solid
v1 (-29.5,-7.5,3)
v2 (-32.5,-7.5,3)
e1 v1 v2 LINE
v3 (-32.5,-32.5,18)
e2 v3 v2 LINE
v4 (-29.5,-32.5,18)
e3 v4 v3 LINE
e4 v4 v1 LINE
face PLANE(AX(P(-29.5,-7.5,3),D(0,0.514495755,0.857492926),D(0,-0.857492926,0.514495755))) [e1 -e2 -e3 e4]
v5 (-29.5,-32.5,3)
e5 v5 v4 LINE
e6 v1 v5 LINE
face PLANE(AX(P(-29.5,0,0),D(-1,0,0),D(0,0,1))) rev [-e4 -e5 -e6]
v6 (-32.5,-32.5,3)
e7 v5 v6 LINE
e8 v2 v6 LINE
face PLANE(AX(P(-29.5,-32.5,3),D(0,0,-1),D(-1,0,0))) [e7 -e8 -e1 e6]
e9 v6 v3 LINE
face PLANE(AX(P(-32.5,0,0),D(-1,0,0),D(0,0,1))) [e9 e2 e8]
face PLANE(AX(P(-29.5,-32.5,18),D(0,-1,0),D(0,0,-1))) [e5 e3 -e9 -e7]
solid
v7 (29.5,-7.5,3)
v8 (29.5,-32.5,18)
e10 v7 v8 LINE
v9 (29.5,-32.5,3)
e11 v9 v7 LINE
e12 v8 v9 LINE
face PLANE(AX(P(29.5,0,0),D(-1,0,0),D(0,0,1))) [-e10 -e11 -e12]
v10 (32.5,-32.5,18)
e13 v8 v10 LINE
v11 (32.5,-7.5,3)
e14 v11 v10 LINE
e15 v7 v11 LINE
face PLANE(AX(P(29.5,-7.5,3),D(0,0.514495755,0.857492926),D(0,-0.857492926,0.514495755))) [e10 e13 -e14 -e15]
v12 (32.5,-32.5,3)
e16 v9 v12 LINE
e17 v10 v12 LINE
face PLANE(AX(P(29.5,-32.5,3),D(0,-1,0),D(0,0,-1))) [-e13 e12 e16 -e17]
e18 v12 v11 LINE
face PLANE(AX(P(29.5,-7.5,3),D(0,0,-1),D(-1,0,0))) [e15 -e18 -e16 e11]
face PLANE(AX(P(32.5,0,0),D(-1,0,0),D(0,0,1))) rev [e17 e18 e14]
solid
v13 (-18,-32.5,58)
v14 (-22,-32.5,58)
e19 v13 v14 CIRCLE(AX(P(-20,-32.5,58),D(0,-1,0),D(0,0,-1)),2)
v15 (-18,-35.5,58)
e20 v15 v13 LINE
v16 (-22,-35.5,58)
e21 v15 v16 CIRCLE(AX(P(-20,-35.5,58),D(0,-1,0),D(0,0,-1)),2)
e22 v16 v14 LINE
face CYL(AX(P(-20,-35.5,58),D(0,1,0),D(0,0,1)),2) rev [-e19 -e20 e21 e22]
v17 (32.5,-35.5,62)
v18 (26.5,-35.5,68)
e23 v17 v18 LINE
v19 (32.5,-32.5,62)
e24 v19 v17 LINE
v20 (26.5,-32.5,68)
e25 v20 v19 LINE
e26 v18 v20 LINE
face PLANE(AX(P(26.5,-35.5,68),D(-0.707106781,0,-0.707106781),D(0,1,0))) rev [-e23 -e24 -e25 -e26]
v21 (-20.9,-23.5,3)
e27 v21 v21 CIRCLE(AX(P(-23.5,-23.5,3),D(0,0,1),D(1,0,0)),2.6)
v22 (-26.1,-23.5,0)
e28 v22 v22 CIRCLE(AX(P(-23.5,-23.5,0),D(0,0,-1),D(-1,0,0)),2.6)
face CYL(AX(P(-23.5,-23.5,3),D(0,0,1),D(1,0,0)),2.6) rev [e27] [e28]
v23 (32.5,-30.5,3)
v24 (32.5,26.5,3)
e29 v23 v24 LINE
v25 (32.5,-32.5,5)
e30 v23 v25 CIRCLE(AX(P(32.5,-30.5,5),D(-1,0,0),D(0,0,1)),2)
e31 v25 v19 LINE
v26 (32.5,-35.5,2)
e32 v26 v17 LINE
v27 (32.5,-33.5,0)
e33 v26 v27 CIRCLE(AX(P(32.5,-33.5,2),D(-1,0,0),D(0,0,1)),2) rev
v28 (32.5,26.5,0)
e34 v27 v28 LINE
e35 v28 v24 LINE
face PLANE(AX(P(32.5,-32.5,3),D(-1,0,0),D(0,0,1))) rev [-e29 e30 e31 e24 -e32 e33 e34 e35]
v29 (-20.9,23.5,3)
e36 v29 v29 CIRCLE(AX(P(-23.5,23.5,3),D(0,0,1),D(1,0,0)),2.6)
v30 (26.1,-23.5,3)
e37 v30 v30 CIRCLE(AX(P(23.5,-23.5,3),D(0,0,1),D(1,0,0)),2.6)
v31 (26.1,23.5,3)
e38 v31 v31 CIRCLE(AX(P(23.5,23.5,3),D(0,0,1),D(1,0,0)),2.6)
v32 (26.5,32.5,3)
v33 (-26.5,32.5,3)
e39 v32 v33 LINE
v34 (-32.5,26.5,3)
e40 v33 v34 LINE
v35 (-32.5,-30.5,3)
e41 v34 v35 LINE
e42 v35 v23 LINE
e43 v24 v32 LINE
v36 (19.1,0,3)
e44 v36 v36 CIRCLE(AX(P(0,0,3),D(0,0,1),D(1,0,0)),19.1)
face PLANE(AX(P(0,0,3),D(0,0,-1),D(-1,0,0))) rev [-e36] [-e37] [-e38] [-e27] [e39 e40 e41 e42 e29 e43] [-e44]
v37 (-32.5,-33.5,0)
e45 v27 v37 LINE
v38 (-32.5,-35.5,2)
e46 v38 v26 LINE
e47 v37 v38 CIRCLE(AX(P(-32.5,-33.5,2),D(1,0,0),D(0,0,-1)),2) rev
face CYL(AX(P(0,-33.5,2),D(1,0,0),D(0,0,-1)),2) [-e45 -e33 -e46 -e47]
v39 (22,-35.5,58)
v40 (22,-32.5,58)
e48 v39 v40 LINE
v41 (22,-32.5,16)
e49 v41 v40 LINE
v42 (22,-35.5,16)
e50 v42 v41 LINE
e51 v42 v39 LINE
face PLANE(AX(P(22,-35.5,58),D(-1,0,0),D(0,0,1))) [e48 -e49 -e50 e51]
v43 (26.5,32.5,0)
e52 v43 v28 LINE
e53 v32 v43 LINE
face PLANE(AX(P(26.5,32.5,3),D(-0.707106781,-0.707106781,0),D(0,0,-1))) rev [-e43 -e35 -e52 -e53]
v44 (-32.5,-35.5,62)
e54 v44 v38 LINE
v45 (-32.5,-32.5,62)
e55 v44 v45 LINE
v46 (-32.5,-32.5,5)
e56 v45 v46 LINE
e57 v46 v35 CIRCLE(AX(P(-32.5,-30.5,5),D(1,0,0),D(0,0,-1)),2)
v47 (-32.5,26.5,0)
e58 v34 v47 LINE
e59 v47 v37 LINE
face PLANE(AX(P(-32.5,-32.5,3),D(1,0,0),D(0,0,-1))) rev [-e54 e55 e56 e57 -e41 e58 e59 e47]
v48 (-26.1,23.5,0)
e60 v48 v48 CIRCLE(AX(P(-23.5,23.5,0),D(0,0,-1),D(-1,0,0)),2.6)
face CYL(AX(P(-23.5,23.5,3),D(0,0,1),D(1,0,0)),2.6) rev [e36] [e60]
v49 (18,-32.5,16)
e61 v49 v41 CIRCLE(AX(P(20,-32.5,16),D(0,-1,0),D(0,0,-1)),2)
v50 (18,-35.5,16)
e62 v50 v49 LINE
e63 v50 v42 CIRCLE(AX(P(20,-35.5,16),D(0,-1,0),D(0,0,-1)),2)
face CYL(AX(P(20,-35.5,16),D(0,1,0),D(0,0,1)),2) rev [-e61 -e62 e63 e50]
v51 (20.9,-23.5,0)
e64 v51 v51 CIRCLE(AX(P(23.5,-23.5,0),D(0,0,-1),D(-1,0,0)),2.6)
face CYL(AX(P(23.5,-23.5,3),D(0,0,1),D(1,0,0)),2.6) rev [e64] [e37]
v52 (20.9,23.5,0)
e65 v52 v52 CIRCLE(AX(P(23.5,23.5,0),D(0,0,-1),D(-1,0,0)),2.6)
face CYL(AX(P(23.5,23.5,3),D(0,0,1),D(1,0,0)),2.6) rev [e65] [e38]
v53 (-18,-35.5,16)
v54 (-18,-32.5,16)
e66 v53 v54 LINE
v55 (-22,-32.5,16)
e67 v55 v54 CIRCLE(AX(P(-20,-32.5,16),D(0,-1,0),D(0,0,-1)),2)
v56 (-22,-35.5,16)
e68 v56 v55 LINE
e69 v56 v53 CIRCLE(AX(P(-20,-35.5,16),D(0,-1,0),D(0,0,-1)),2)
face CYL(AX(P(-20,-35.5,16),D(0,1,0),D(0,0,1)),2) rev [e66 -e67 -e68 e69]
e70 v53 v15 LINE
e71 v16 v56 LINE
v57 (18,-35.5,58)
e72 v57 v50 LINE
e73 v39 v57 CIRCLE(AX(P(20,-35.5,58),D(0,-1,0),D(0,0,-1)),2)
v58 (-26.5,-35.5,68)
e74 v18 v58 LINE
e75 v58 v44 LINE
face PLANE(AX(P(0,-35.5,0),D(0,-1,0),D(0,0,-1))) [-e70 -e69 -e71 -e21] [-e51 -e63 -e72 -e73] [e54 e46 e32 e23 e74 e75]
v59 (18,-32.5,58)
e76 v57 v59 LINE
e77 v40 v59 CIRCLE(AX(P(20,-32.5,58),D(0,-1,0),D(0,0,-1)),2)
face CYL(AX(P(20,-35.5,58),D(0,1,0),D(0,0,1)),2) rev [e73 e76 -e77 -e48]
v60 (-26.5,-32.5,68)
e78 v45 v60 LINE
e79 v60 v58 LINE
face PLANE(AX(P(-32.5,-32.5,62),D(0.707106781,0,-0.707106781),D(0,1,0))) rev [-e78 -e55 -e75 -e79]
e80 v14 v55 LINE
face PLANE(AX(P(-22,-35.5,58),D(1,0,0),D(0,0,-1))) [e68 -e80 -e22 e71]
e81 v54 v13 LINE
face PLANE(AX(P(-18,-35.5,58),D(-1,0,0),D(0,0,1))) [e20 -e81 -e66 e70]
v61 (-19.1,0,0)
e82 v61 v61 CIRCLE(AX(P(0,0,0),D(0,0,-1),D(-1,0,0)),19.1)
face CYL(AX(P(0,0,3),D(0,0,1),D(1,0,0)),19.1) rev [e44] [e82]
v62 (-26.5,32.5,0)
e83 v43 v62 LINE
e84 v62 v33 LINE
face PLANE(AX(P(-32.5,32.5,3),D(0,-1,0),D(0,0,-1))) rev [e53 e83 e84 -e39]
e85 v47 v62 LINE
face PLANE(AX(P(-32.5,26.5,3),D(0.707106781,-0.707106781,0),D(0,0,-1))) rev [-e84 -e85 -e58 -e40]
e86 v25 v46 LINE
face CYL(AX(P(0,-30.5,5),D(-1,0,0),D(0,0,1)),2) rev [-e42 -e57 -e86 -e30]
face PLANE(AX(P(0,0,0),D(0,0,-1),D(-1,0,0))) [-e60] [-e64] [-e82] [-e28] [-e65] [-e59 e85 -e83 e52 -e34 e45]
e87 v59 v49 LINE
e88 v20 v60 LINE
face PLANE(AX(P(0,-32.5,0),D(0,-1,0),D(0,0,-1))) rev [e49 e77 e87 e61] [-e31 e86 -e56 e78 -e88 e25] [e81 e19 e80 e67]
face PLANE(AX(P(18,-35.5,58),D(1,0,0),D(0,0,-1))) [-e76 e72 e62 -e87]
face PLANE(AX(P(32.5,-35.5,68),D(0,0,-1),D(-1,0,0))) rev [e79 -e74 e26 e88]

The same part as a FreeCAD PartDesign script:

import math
import FreeCAD as App
import Part
import Sketcher
from FreeCAD import Vector
Q = App.Units.Quantity


def edges_at(feature, points):
    """Names of the edges that pass closest to the given points."""
    edges = feature.Shape.Edges
    near = lambda p: min(range(len(edges)), key=lambda i: edges[i].distToShape(Part.Vertex(*p))[0])
    return sorted({f"Edge{near(p) + 1}" for p in points})

doc = App.newDocument("Part")
body = doc.addObject("PartDesign::Body", "Body")

# Sketch on XY plane
sketch1 = doc.addObject("Sketcher::SketchObject", "Sketch")
body.addObject(sketch1)
sketch1.AttachmentSupport = (doc.XY_Plane, [""])
sketch1.MapMode = "FlatFace"
sketch1.addGeometry(Part.LineSegment(Vector(-32.5, 32.5, 0), Vector(-32.5, -32.5, 0)), False)
sketch1.addGeometry(Part.LineSegment(Vector(-32.5, -32.5, 0), Vector(32.5, -32.5, 0)), False)
sketch1.addGeometry(Part.LineSegment(Vector(32.5, -32.5, 0), Vector(32.5, 32.5, 0)), False)
sketch1.addGeometry(Part.LineSegment(Vector(32.5, 32.5, 0), Vector(-32.5, 32.5, 0)), False)
sketch1.addConstraint(Sketcher.Constraint("Coincident", 0, 2, 1, 1))
sketch1.addConstraint(Sketcher.Constraint("Coincident", 1, 2, 2, 1))
sketch1.addConstraint(Sketcher.Constraint("Coincident", 2, 2, 3, 1))
sketch1.addConstraint(Sketcher.Constraint("Coincident", 3, 2, 0, 1))
sketch1.addConstraint(Sketcher.Constraint("Vertical", 0))
sketch1.addConstraint(Sketcher.Constraint("Horizontal", 1))
sketch1.addConstraint(Sketcher.Constraint("Vertical", 2))
sketch1.addConstraint(Sketcher.Constraint("Horizontal", 3))
sketch1.addConstraint(Sketcher.Constraint("Symmetric", 0, 2, 2, 2, -1, 1))
sketch1.addConstraint(Sketcher.Constraint("Equal", 3, 0))
sketch1.addConstraint(Sketcher.Constraint("DistanceX", 1, 1, 1, 2, Q("65 mm")))
pad1 = doc.addObject("PartDesign::Pad", "Pad")
body.addObject(pad1)
pad1.Profile = sketch1
pad1.Length = 3

# Sketch on XZ plane
sketch2 = doc.addObject("Sketcher::SketchObject", "Sketch001")
body.addObject(sketch2)
sketch2.AttachmentSupport = (doc.XZ_Plane, [""])
sketch2.MapMode = "FlatFace"
sketch2.AttachmentOffset = App.Placement(Vector(0, 0, 32.5), App.Rotation())
sketch2.addGeometry(Part.LineSegment(Vector(32.5, 0, 0), Vector(32.5, 68, 0)), False)
sketch2.addGeometry(Part.LineSegment(Vector(32.5, 68, 0), Vector(-32.5, 68, 0)), False)
sketch2.addGeometry(Part.LineSegment(Vector(-32.5, 68, 0), Vector(-32.5, 0, 0)), False)
sketch2.addGeometry(Part.LineSegment(Vector(-32.5, 0, 0), Vector(32.5, 0, 0)), False)
sketch2.addGeometry(Part.ArcOfCircle(Part.Circle(Vector(20, 58, 0), Vector(0, 0, 1), 2), math.radians(0), math.radians(180)), False)
sketch2.addGeometry(Part.LineSegment(Vector(22, 58, 0), Vector(22, 16, 0)), False)
sketch2.addGeometry(Part.ArcOfCircle(Part.Circle(Vector(20, 16, 0), Vector(0, 0, 1), 2), math.radians(180), math.radians(360)), False)
sketch2.addGeometry(Part.LineSegment(Vector(18, 16, 0), Vector(18, 58, 0)), False)
sketch2.addGeometry(Part.ArcOfCircle(Part.Circle(Vector(-20, 58, 0), Vector(0, 0, 1), 2), math.radians(0), math.radians(180)), False)
sketch2.addGeometry(Part.LineSegment(Vector(-18, 58, 0), Vector(-18, 16, 0)), False)
sketch2.addGeometry(Part.ArcOfCircle(Part.Circle(Vector(-20, 16, 0), Vector(0, 0, 1), 2), math.radians(180), math.radians(360)), False)
sketch2.addGeometry(Part.LineSegment(Vector(-22, 16, 0), Vector(-22, 58, 0)), False)
sketch2.addConstraint(Sketcher.Constraint("Coincident", 0, 2, 1, 1))
sketch2.addConstraint(Sketcher.Constraint("Coincident", 1, 2, 2, 1))
sketch2.addConstraint(Sketcher.Constraint("Coincident", 2, 2, 3, 1))
sketch2.addConstraint(Sketcher.Constraint("Coincident", 3, 2, 0, 1))
sketch2.addConstraint(Sketcher.Constraint("Tangent", 4, 1, 5, 1))
sketch2.addConstraint(Sketcher.Constraint("Tangent", 5, 2, 6, 2))
sketch2.addConstraint(Sketcher.Constraint("Tangent", 6, 1, 7, 1))
sketch2.addConstraint(Sketcher.Constraint("Tangent", 7, 2, 4, 2))
sketch2.addConstraint(Sketcher.Constraint("Tangent", 8, 1, 9, 1))
sketch2.addConstraint(Sketcher.Constraint("Tangent", 9, 2, 10, 2))
sketch2.addConstraint(Sketcher.Constraint("Tangent", 10, 1, 11, 1))
sketch2.addConstraint(Sketcher.Constraint("Tangent", 11, 2, 8, 2))
sketch2.addConstraint(Sketcher.Constraint("Vertical", 0))
sketch2.addConstraint(Sketcher.Constraint("Horizontal", 1))
sketch2.addConstraint(Sketcher.Constraint("Vertical", 2))
sketch2.addConstraint(Sketcher.Constraint("Horizontal", 3))
sketch2.addConstraint(Sketcher.Constraint("Vertical", 5))
sketch2.addConstraint(Sketcher.Constraint("Vertical", 7))
sketch2.addConstraint(Sketcher.Constraint("Vertical", 9))
sketch2.addConstraint(Sketcher.Constraint("Vertical", 11))
sketch2.addConstraint(Sketcher.Constraint("Equal", 6, 8))
sketch2.addConstraint(Sketcher.Constraint("Symmetric", 2, 2, 3, 2, -1, 1))
sketch2.addConstraint(Sketcher.Constraint("Symmetric", 4, 3, 8, 3, -2))
sketch2.addConstraint(Sketcher.Constraint("Horizontal", 6, 3, 10, 3))
sketch2.addConstraint(Sketcher.Constraint("Radius", 4, Q("2 mm")))
sketch2.addConstraint(Sketcher.Constraint("DistanceX", 1, 2, 1, 1, Q("65 mm")))
sketch2.addConstraint(Sketcher.Constraint("DistanceY", 0, 1, 0, 2, Q("68 mm")))
sketch2.addConstraint(Sketcher.Constraint("DistanceY", 5, 2, 5, 1, Q("42 mm")))
sketch2.addConstraint(Sketcher.Constraint("DistanceX", -1, 1, 4, 3, Q("20 mm")))
sketch2.addConstraint(Sketcher.Constraint("DistanceY", -1, 1, 4, 3, Q("58 mm")))
pad2 = doc.addObject("PartDesign::Pad", "Pad001")
body.addObject(pad2)
pad2.Profile = sketch2
pad2.Length = 3

# Sketch on XY plane
sketch3 = doc.addObject("Sketcher::SketchObject", "Sketch002")
body.addObject(sketch3)
sketch3.AttachmentSupport = (doc.XY_Plane, [""])
sketch3.MapMode = "FlatFace"
sketch3.AttachmentOffset = App.Placement(Vector(0, 0, 3), App.Rotation())
sketch3.addGeometry(Part.Circle(Vector(-23.5, 23.5, 0), Vector(0, 0, 1), 2.6), False)
sketch3.addGeometry(Part.Circle(Vector(23.5, 23.5, 0), Vector(0, 0, 1), 2.6), False)
sketch3.addGeometry(Part.Circle(Vector(23.5, -23.5, 0), Vector(0, 0, 1), 2.6), False)
sketch3.addGeometry(Part.Circle(Vector(-23.5, -23.5, 0), Vector(0, 0, 1), 2.6), False)
sketch3.addConstraint(Sketcher.Constraint("Equal", 0, 1))
sketch3.addConstraint(Sketcher.Constraint("Equal", 1, 2))
sketch3.addConstraint(Sketcher.Constraint("Equal", 2, 3))
sketch3.addConstraint(Sketcher.Constraint("Symmetric", 0, 3, 2, 3, -1, 1))
sketch3.addConstraint(Sketcher.Constraint("Symmetric", 1, 3, 3, 3, -1, 1))
sketch3.addConstraint(Sketcher.Constraint("Symmetric", 0, 3, 1, 3, -2))
sketch3.addConstraint(Sketcher.Constraint("Diameter", 0, Q("5.2 mm")))
sketch3.addConstraint(Sketcher.Constraint("DistanceX", 0, 3, 1, 3, Q("47 mm")))
sketch3.addConstraint(Sketcher.Constraint("DistanceY", 2, 3, 1, 3, Q("47 mm")))
doc.recompute()
hole = doc.addObject("PartDesign::Hole", "Hole")
body.addObject(hole)
hole.Profile = sketch3
hole.ThreadType = "None"
hole.Diameter = 5.2
hole.DepthType = "Dimension"
hole.Depth = 25.4
hole.DrillPoint = "Angled"
hole.DrillPointAngle = 118

# Sketch on XY plane
sketch4 = doc.addObject("Sketcher::SketchObject", "Sketch003")
body.addObject(sketch4)
sketch4.AttachmentSupport = (doc.XY_Plane, [""])
sketch4.MapMode = "FlatFace"
sketch4.AttachmentOffset = App.Placement(Vector(0, 0, 3), App.Rotation())
sketch4.addGeometry(Part.Circle(Vector(0, 0, 0), Vector(0, 0, 1), 19.1), False)
sketch4.addConstraint(Sketcher.Constraint("Coincident", 0, 3, -1, 1))
sketch4.addConstraint(Sketcher.Constraint("Diameter", 0, Q("38.2 mm")))
doc.recompute()
hole2 = doc.addObject("PartDesign::Hole", "Hole001")
body.addObject(hole2)
hole2.Profile = sketch4
hole2.ThreadType = "None"
hole2.Diameter = 38.2
hole2.DepthType = "Dimension"
hole2.Depth = 25.4
hole2.DrillPoint = "Angled"
hole2.DrillPointAngle = 118
doc.recompute()

fillet = doc.addObject("PartDesign::Fillet", "Fillet")
body.addObject(fillet)
fillet.Base = (hole2, edges_at(hole2, [(0, -35.5, 0), (0, -32.5, 3)]))
fillet.Radius = 2
doc.recompute()

chamfer = doc.addObject("PartDesign::Chamfer", "Chamfer")
body.addObject(chamfer)
chamfer.Base = (fillet, edges_at(fillet, [
    (-32.5, 32.5, 1.5),
    (-32.5, -34, 68),
    (32.5, -34, 68),
    (32.5, 32.5, 1.5),
]))
chamfer.Size = 6
body2 = doc.addObject("PartDesign::Body", "Body001")

# Sketch on YZ plane
sketch5 = doc.addObject("Sketcher::SketchObject", "Sketch004")
body2.addObject(sketch5)
sketch5.AttachmentSupport = (doc.getObject("YZ_Plane001"), [""])
sketch5.MapMode = "FlatFace"
sketch5.AttachmentOffset = App.Placement(Vector(0, 0, 32.5), App.Rotation())
sketch5.addGeometry(Part.LineSegment(Vector(-7.5, 3, 0), Vector(-32.5, 18, 0)), False)
sketch5.addGeometry(Part.LineSegment(Vector(-32.5, 18, 0), Vector(-32.5, 3, 0)), False)
sketch5.addGeometry(Part.LineSegment(Vector(-32.5, 3, 0), Vector(-7.5, 3, 0)), False)
sketch5.addConstraint(Sketcher.Constraint("Coincident", 0, 2, 1, 1))
sketch5.addConstraint(Sketcher.Constraint("Coincident", 1, 2, 2, 1))
sketch5.addConstraint(Sketcher.Constraint("Coincident", 2, 2, 0, 1))
sketch5.addConstraint(Sketcher.Constraint("Vertical", 1))
sketch5.addConstraint(Sketcher.Constraint("Horizontal", 2))
sketch5.addConstraint(Sketcher.Constraint("DistanceX", 2, 1, 2, 2, Q("25 mm")))
sketch5.addConstraint(Sketcher.Constraint("DistanceY", 1, 2, 1, 1, Q("15 mm")))
sketch5.addConstraint(Sketcher.Constraint("DistanceY", -1, 1, 0, 2, Q("18 mm")))
sketch5.addConstraint(Sketcher.Constraint("DistanceX", 0, 2, -1, 1, Q("32.5 mm")))
pad3 = doc.addObject("PartDesign::Pad", "Pad002")
body2.addObject(pad3)
pad3.Profile = sketch5
pad3.Length = 3
pad3.Reversed = True
body3 = doc.addObject("PartDesign::Body", "Body002")

# Sketch on YZ plane
sketch6 = doc.addObject("Sketcher::SketchObject", "Sketch005")
body3.addObject(sketch6)
sketch6.AttachmentSupport = (doc.getObject("YZ_Plane002"), [""])
sketch6.MapMode = "FlatFace"
sketch6.AttachmentOffset = App.Placement(Vector(0, 0, -32.5), App.Rotation())
sketch6.addGeometry(Part.LineSegment(Vector(-32.5, 18, 0), Vector(-7.5, 3, 0)), False)
sketch6.addGeometry(Part.LineSegment(Vector(-7.5, 3, 0), Vector(-32.5, 3, 0)), False)
sketch6.addGeometry(Part.LineSegment(Vector(-32.5, 3, 0), Vector(-32.5, 18, 0)), False)
sketch6.addConstraint(Sketcher.Constraint("Coincident", 0, 2, 1, 1))
sketch6.addConstraint(Sketcher.Constraint("Coincident", 1, 2, 2, 1))
sketch6.addConstraint(Sketcher.Constraint("Coincident", 2, 2, 0, 1))
sketch6.addConstraint(Sketcher.Constraint("Horizontal", 1))
sketch6.addConstraint(Sketcher.Constraint("Vertical", 2))
sketch6.addConstraint(Sketcher.Constraint("DistanceX", 1, 2, 1, 1, Q("25 mm")))
sketch6.addConstraint(Sketcher.Constraint("DistanceY", 2, 1, 2, 2, Q("15 mm")))
sketch6.addConstraint(Sketcher.Constraint("DistanceY", -1, 1, 0, 2, Q("3 mm")))
sketch6.addConstraint(Sketcher.Constraint("DistanceX", 0, 2, -1, 1, Q("7.5 mm")))
pad4 = doc.addObject("PartDesign::Pad", "Pad003")
body3.addObject(pad4)
pad4.Profile = sketch6
pad4.Length = 3

doc.recompute()
